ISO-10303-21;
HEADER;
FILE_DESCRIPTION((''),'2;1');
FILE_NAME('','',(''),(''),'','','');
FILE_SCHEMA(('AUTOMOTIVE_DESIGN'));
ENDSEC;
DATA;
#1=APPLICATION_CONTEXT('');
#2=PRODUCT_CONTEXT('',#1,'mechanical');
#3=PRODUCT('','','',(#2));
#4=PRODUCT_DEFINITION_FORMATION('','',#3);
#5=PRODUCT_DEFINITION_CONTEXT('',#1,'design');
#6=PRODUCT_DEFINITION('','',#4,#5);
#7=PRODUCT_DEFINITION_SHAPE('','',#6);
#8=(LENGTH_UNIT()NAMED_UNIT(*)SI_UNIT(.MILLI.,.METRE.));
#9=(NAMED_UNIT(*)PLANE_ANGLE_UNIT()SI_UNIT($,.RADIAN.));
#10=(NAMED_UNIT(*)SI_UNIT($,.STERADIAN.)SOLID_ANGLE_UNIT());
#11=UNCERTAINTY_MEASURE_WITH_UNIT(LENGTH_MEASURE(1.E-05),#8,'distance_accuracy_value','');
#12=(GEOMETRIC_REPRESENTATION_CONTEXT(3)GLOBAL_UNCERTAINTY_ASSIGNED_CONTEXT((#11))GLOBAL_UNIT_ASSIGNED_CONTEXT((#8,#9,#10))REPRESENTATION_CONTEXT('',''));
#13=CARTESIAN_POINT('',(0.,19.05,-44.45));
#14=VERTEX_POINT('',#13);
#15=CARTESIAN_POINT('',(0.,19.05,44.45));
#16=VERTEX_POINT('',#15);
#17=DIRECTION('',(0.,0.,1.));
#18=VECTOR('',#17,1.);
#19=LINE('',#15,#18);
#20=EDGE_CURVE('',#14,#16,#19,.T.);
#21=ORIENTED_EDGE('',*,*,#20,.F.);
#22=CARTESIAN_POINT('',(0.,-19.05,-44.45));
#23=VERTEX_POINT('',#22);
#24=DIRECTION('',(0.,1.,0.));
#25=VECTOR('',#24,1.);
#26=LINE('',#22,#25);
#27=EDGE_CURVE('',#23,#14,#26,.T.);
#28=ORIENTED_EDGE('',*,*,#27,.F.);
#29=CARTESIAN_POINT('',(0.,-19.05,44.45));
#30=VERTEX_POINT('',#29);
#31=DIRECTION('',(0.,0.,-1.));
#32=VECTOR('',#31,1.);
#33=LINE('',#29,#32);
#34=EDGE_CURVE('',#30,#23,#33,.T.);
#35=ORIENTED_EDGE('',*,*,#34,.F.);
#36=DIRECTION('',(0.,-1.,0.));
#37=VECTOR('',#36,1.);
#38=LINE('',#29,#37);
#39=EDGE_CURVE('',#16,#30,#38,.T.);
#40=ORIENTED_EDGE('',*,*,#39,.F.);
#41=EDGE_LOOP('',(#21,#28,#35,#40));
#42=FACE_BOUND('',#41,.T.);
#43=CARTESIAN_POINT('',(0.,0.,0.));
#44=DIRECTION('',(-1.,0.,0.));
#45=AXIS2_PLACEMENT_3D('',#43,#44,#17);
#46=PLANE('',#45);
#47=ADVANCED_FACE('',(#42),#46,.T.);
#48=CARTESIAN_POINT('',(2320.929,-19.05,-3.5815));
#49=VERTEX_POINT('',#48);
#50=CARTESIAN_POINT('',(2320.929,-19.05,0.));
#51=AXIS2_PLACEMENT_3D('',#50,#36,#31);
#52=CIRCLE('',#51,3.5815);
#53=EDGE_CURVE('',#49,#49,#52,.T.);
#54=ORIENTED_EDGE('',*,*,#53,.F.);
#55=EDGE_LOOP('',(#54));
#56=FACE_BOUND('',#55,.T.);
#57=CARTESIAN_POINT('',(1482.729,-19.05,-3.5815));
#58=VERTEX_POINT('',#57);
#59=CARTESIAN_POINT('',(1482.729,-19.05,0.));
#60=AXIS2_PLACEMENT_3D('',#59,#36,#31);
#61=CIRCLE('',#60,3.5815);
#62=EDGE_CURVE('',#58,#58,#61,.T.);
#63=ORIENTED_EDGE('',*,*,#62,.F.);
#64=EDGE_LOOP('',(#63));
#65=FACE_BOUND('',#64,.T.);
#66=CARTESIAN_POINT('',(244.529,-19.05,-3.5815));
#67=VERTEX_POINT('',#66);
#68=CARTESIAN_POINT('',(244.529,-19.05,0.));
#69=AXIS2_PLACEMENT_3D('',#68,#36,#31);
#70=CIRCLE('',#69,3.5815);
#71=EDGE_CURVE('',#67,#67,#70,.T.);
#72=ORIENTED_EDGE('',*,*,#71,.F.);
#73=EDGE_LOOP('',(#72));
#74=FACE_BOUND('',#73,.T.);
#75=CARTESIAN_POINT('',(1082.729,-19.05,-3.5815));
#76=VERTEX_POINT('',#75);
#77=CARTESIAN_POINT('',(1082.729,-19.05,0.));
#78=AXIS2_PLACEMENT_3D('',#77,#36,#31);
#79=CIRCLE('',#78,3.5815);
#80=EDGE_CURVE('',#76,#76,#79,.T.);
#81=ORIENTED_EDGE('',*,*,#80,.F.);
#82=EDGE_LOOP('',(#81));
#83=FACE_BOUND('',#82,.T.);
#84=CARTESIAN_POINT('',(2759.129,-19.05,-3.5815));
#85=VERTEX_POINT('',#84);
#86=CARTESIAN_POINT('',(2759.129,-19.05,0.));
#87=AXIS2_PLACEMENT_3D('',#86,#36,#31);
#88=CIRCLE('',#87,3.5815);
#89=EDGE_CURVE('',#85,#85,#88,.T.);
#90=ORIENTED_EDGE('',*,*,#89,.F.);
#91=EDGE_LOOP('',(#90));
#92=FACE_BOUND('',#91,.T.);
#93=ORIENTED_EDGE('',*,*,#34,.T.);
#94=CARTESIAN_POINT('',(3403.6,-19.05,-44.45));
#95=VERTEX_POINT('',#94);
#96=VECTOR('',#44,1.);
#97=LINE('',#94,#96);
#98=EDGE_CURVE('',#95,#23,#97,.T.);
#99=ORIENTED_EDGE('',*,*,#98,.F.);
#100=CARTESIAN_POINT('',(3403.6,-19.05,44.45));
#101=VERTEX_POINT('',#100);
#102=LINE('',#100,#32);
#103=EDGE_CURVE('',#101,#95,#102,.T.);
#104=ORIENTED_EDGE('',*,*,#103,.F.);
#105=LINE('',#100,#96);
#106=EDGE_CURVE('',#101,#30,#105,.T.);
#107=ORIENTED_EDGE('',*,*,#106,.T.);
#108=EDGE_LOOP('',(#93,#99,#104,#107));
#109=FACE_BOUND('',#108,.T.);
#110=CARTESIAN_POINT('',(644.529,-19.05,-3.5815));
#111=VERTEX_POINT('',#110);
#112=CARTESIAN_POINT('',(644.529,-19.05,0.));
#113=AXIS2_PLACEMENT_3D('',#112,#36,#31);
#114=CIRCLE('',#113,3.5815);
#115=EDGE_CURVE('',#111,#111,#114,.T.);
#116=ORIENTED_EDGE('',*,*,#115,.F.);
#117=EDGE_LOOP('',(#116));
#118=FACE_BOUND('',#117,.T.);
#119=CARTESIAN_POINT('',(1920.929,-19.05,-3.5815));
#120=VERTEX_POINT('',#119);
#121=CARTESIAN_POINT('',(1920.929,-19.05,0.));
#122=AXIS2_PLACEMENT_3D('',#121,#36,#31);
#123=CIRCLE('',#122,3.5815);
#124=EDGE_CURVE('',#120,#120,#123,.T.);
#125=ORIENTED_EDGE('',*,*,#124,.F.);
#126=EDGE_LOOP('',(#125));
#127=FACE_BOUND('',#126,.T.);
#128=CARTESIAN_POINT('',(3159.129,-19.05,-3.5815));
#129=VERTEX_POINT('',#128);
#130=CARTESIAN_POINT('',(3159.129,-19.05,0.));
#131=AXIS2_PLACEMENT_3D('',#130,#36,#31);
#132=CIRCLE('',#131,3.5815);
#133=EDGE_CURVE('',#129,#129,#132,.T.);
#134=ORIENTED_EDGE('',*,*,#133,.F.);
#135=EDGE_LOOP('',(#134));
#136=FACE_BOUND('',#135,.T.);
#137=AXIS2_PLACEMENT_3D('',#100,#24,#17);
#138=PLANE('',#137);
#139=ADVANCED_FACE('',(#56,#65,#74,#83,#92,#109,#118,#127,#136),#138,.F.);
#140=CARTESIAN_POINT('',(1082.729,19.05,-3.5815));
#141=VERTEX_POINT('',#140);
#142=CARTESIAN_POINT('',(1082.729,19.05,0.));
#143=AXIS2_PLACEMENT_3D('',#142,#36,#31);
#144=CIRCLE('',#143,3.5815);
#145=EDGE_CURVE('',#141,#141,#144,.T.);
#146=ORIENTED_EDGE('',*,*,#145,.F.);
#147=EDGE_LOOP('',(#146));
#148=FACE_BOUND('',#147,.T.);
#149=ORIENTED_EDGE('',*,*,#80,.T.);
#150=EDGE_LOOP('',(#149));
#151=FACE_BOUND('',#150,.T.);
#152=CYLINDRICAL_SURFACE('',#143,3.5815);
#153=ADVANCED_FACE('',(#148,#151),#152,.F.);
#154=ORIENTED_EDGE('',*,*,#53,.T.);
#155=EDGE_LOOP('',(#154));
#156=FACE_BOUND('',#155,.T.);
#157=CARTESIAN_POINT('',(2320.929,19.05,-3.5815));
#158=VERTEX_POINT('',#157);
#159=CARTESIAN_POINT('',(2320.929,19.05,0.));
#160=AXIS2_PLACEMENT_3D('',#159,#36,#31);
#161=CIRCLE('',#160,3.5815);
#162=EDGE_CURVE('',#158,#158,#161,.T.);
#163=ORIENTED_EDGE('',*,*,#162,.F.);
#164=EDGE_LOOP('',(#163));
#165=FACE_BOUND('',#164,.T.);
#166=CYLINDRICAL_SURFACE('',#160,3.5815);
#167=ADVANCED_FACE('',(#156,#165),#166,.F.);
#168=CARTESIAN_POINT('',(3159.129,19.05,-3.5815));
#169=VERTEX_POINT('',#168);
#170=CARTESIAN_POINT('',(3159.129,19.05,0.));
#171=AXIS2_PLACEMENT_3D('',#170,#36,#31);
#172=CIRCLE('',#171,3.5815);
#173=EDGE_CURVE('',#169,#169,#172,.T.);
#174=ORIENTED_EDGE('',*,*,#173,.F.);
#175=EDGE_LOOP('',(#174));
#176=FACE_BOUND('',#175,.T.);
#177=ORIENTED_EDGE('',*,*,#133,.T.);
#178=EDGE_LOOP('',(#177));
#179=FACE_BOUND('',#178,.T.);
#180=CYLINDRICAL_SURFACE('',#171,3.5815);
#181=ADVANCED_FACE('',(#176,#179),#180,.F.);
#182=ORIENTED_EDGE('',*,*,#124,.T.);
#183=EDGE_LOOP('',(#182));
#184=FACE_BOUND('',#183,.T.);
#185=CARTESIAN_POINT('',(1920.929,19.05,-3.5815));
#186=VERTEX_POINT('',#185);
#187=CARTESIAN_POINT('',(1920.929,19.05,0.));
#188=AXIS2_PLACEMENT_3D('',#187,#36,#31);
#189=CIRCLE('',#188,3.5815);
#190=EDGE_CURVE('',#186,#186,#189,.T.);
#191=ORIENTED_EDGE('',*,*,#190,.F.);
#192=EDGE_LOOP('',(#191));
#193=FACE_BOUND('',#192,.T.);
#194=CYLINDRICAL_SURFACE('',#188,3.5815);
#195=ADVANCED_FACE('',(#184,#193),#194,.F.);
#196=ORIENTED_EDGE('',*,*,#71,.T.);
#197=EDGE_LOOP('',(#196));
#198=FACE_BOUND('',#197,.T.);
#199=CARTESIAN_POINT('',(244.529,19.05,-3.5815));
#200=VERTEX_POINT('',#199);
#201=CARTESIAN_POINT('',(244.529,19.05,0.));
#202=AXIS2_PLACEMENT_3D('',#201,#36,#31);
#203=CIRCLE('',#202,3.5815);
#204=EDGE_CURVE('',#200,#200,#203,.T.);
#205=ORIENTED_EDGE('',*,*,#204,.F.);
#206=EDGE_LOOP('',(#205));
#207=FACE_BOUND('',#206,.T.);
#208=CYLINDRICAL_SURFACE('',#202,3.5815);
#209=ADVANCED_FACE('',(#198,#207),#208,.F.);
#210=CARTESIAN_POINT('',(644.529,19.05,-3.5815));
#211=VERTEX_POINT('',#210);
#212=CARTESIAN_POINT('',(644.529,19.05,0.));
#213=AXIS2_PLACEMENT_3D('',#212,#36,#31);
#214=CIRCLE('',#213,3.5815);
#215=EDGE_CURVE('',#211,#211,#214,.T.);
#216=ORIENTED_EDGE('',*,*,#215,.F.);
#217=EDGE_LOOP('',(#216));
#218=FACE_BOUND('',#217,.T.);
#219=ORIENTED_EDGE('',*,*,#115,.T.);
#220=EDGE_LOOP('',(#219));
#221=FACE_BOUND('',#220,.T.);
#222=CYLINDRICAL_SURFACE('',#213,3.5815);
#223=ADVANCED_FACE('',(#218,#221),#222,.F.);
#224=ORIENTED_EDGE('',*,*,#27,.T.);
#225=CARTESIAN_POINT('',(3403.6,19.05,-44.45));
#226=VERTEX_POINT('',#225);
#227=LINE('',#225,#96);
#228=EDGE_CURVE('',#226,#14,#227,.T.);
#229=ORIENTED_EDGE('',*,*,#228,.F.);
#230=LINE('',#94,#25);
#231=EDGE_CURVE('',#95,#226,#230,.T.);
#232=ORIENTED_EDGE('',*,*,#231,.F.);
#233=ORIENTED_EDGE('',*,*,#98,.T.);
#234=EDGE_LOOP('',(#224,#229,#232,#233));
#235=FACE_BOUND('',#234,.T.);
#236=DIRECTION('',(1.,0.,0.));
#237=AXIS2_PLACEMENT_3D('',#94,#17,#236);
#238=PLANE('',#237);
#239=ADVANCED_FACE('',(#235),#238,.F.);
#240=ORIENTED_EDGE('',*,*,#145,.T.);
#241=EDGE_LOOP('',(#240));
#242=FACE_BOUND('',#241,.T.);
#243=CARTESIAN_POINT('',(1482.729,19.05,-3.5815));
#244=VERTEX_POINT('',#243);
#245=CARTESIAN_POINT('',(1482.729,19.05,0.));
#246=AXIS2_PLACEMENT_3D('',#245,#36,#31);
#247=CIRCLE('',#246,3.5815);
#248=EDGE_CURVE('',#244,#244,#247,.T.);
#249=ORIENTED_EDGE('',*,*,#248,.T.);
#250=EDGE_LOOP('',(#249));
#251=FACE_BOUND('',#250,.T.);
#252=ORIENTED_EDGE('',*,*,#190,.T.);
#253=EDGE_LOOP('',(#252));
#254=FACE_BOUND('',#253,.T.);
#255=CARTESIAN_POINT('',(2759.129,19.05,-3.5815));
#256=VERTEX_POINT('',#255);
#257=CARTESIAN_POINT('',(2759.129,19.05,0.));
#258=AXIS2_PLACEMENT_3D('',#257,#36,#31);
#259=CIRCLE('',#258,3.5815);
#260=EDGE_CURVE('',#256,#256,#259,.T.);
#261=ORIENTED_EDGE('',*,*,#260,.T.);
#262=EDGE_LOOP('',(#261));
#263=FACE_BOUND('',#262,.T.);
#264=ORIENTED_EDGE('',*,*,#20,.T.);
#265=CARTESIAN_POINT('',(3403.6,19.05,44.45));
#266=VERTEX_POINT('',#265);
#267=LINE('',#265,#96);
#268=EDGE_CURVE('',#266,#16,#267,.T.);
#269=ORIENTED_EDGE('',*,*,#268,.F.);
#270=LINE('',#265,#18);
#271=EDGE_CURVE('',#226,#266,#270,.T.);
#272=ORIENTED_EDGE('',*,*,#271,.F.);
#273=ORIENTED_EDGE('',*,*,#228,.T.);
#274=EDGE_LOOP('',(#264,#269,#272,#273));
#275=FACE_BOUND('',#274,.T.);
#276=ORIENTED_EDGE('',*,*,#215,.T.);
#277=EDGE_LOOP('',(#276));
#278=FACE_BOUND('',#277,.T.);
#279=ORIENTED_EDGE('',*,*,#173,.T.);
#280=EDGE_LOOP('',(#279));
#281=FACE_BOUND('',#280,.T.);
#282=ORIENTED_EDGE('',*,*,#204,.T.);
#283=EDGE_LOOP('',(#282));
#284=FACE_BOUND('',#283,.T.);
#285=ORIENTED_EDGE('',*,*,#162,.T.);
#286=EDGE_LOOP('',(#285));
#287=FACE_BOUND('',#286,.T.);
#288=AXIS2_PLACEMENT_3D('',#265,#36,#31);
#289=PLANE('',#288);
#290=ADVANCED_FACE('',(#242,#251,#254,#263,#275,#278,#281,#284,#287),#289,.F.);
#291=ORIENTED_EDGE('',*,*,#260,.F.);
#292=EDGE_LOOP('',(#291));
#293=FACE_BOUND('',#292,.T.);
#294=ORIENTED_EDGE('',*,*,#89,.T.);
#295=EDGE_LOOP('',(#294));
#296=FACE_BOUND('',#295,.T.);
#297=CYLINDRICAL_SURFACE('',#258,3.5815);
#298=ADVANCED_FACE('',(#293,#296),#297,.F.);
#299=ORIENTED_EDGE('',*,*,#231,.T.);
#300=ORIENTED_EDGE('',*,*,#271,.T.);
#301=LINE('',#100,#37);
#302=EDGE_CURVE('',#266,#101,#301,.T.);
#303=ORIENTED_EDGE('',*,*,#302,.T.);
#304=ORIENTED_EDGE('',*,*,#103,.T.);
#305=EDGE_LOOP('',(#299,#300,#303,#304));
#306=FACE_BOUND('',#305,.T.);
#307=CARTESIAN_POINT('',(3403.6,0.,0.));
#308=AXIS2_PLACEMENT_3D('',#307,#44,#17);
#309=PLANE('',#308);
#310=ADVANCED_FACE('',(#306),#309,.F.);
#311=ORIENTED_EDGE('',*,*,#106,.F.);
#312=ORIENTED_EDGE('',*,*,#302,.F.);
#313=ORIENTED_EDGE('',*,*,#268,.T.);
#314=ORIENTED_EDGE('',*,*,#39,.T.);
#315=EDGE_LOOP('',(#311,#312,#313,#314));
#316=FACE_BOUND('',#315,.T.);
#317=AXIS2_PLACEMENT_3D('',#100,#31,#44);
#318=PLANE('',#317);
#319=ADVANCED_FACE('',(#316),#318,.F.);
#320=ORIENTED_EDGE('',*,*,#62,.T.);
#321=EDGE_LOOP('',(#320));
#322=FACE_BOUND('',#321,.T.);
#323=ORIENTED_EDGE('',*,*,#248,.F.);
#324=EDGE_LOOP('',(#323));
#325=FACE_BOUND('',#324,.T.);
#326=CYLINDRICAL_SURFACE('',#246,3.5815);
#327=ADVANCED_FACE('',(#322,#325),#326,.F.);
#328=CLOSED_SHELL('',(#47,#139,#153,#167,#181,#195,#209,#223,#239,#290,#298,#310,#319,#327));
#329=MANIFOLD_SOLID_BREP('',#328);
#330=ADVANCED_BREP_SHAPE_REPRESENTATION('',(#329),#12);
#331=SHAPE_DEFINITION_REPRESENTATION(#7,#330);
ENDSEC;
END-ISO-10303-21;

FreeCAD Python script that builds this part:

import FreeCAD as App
import Part
import Sketcher
Q = App.Units.Quantity

doc = App.newDocument("Part")
params = doc.addObject("Spreadsheet::Sheet", "Params")
for row, (alias, value) in enumerate([
    ("sketch1_width", "1.5 in"),
    ("sketch1_height", "3.5 in"),
    ("pad1_length", "134 in"),
], start=1):
    params.set(f"A{row}", alias)
    params.set(f"B{row}", "=" + value)
    params.setAlias(f"B{row}", alias)

body = doc.addObject("PartDesign::Body", "Body")

sketch1 = body.newObject("Sketcher::SketchObject", "Sketch")
sketch1.AttachmentSupport = (doc.getObject("YZ_Plane"), [""])
sketch1.MapMode = "FlatFace"
sketch1.addGeometry([
    Part.LineSegment(App.Vector(19, 44, 0), App.Vector(-19, 44, 0)),
    Part.LineSegment(App.Vector(-19, 44, 0), App.Vector(-19, -44, 0)),
    Part.LineSegment(App.Vector(-19, -44, 0), App.Vector(19, -44, 0)),
    Part.LineSegment(App.Vector(19, -44, 0), App.Vector(19, 44, 0)),
], False)
sketch1.addConstraint([
    Sketcher.Constraint("Coincident", 0, 2, 1, 1),
    Sketcher.Constraint("Coincident", 1, 2, 2, 1),
    Sketcher.Constraint("Coincident", 2, 2, 3, 1),
    Sketcher.Constraint("Coincident", 3, 2, 0, 1),
    Sketcher.Constraint("Horizontal", 0),
    Sketcher.Constraint("Vertical", 1),
    Sketcher.Constraint("Horizontal", 2),
    Sketcher.Constraint("Vertical", 3),
    Sketcher.Constraint("Symmetric", 0, 2, 2, 2, -1, 1),
    Sketcher.Constraint("DistanceX", 0, 2, 0, 1, Q("1.5 in")),
    Sketcher.Constraint("DistanceY", 1, 2, 1, 1, Q("3.5 in")),
])
sketch1.setExpression("Constraints[9]", "Params.sketch1_width")
sketch1.setExpression("Constraints[10]", "Params.sketch1_height")
pad1 = body.newObject("PartDesign::Pad", "Pad")
pad1.Profile = sketch1
pad1.setExpression("Length", "Params.pad1_length")

sketch2 = body.newObject("Sketcher::SketchObject", "Sketch001")
sketch2.AttachmentSupport = (doc.getObject("XZ_Plane"), [""])
sketch2.MapMode = "FlatFace"
sketch2.AttachmentOffset = App.Placement(App.Vector(0, 0, 0.75 * 25.4), App.Rotation())
sketch2.addGeometry([
    Part.Circle(App.Vector(244.5, 0, 0), App.Vector(0, 0, 1), 3.6),
    Part.Circle(App.Vector(644.5, 0, 0), App.Vector(0, 0, 1), 3.6),
    Part.Circle(App.Vector(1082.7, 0, 0), App.Vector(0, 0, 1), 3.6),
    Part.Circle(App.Vector(1482.7, 0, 0), App.Vector(0, 0, 1), 3.6),
    Part.Circle(App.Vector(1920.9, 0, 0), App.Vector(0, 0, 1), 3.6),
    Part.Circle(App.Vector(2320.9, 0, 0), App.Vector(0, 0, 1), 3.6),
    Part.Circle(App.Vector(2759.1, 0, 0), App.Vector(0, 0, 1), 3.6),
    Part.Circle(App.Vector(3159.1, 0, 0), App.Vector(0, 0, 1), 3.6),
], False)
sketch2.addConstraint([
    Sketcher.Constraint("Equal", 0, 1),
    Sketcher.Constraint("Equal", 1, 2),
    Sketcher.Constraint("Equal", 2, 3),
    Sketcher.Constraint("Equal", 3, 4),
    Sketcher.Constraint("Equal", 4, 5),
    Sketcher.Constraint("Equal", 5, 6),
    Sketcher.Constraint("Equal", 6, 7),
    Sketcher.Constraint("PointOnObject", 0, 3, -1),
    Sketcher.Constraint("PointOnObject", 1, 3, -1),
    Sketcher.Constraint("PointOnObject", 2, 3, -1),
    Sketcher.Constraint("PointOnObject", 3, 3, -1),
    Sketcher.Constraint("PointOnObject", 4, 3, -1),
    Sketcher.Constraint("PointOnObject", 5, 3, -1),
    Sketcher.Constraint("PointOnObject", 6, 3, -1),
    Sketcher.Constraint("PointOnObject", 7, 3, -1),
    Sketcher.Constraint("DistanceX", 0, 3, 2, 3, Q("33 in")),
    Sketcher.Constraint("DistanceX", 1, 3, 3, 3, Q("33 in")),
    Sketcher.Constraint("DistanceX", 2, 3, 4, 3, Q("33 in")),
    Sketcher.Constraint("DistanceX", 3, 3, 5, 3, Q("33 in")),
    Sketcher.Constraint("DistanceX", 4, 3, 6, 3, Q("33 in")),
    Sketcher.Constraint("DistanceX", 5, 3, 7, 3, Q("33 in")),
    Sketcher.Constraint("Diameter", 0, Q("7.163 mm")),
    Sketcher.Constraint("DistanceX", -1, 1, 0, 3, Q("244.529 mm")),
    Sketcher.Constraint("DistanceX", -1, 1, 1, 3, Q("644.529 mm")),
])
pocket1 = body.newObject("PartDesign::Pocket", "Pocket")
pocket1.Profile = sketch2
pocket1.Type = "ThroughAll"

doc.recompute()
